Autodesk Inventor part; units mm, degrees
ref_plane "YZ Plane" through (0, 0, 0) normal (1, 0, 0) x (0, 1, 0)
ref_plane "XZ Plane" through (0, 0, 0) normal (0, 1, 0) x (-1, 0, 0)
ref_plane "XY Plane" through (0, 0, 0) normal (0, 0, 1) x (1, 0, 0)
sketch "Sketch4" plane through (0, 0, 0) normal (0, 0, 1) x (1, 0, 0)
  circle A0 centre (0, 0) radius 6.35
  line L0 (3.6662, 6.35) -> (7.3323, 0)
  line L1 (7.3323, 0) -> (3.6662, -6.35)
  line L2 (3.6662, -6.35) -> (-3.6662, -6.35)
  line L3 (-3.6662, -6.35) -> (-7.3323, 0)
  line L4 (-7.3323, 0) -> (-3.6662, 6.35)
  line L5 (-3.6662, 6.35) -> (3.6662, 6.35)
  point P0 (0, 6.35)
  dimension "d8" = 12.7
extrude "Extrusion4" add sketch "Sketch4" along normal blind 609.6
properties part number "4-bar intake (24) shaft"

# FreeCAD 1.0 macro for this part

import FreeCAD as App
import Part
import Sketcher
from FreeCAD import Vector
Q = App.Units.Quantity

doc = App.newDocument("Part")
body = doc.addObject("PartDesign::Body", "Body")

sketch1 = doc.addObject("Sketcher::SketchObject", "Sketch")
body.addObject(sketch1)
sketch1.AttachmentSupport = (doc.XY_Plane, [""])
sketch1.MapMode = "FlatFace"
sketch1.addGeometry(Part.LineSegment(Vector(7, 0, 0), Vector(4, 6, 0)), False)
sketch1.addGeometry(Part.LineSegment(Vector(4, 6, 0), Vector(-4, 6, 0)), False)
sketch1.addGeometry(Part.LineSegment(Vector(-4, 6, 0), Vector(-7, 0, 0)), False)
sketch1.addGeometry(Part.LineSegment(Vector(-7, 0, 0), Vector(-4, -6, 0)), False)
sketch1.addGeometry(Part.LineSegment(Vector(-4, -6, 0), Vector(4, -6, 0)), False)
sketch1.addGeometry(Part.LineSegment(Vector(4, -6, 0), Vector(7, 0, 0)), False)
sketch1.addConstraint(Sketcher.Constraint("Coincident", 0, 2, 1, 1))
sketch1.addConstraint(Sketcher.Constraint("Coincident", 1, 2, 2, 1))
sketch1.addConstraint(Sketcher.Constraint("Coincident", 2, 2, 3, 1))
sketch1.addConstraint(Sketcher.Constraint("Coincident", 3, 2, 4, 1))
sketch1.addConstraint(Sketcher.Constraint("Coincident", 4, 2, 5, 1))
sketch1.addConstraint(Sketcher.Constraint("Coincident", 5, 2, 0, 1))
sketch1.addConstraint(Sketcher.Constraint("Horizontal", 1))
sketch1.addConstraint(Sketcher.Constraint("Horizontal", 4))
sketch1.addConstraint(Sketcher.Constraint("Symmetric", 0, 2, 3, 2, -1, 1))
sketch1.addConstraint(Sketcher.Constraint("Symmetric", 2, 2, 5, 2, -1, 1))
sketch1.addConstraint(Sketcher.Constraint("PointOnObject", 2, 2, -1))
sketch1.addConstraint(Sketcher.Constraint("Parallel", 2, 5))
sketch1.addConstraint(Sketcher.Constraint("Vertical", 1, 2, 3, 2))
sketch1.addConstraint(Sketcher.Constraint("DistanceY", 3, 2, 1, 2, Q("0.5 in")))
sketch1.addConstraint(Sketcher.Constraint("Angle", 0, Q("119.9995 deg")))
sketch1.addConstraint(Sketcher.Constraint("DistanceX", 2, 2, 0, 2, Q("0.433 in")))
pad1 = doc.addObject("PartDesign::Pad", "Pad")
body.addObject(pad1)
pad1.Profile = sketch1
pad1.Length = Q("24 in")

doc.recompute()
